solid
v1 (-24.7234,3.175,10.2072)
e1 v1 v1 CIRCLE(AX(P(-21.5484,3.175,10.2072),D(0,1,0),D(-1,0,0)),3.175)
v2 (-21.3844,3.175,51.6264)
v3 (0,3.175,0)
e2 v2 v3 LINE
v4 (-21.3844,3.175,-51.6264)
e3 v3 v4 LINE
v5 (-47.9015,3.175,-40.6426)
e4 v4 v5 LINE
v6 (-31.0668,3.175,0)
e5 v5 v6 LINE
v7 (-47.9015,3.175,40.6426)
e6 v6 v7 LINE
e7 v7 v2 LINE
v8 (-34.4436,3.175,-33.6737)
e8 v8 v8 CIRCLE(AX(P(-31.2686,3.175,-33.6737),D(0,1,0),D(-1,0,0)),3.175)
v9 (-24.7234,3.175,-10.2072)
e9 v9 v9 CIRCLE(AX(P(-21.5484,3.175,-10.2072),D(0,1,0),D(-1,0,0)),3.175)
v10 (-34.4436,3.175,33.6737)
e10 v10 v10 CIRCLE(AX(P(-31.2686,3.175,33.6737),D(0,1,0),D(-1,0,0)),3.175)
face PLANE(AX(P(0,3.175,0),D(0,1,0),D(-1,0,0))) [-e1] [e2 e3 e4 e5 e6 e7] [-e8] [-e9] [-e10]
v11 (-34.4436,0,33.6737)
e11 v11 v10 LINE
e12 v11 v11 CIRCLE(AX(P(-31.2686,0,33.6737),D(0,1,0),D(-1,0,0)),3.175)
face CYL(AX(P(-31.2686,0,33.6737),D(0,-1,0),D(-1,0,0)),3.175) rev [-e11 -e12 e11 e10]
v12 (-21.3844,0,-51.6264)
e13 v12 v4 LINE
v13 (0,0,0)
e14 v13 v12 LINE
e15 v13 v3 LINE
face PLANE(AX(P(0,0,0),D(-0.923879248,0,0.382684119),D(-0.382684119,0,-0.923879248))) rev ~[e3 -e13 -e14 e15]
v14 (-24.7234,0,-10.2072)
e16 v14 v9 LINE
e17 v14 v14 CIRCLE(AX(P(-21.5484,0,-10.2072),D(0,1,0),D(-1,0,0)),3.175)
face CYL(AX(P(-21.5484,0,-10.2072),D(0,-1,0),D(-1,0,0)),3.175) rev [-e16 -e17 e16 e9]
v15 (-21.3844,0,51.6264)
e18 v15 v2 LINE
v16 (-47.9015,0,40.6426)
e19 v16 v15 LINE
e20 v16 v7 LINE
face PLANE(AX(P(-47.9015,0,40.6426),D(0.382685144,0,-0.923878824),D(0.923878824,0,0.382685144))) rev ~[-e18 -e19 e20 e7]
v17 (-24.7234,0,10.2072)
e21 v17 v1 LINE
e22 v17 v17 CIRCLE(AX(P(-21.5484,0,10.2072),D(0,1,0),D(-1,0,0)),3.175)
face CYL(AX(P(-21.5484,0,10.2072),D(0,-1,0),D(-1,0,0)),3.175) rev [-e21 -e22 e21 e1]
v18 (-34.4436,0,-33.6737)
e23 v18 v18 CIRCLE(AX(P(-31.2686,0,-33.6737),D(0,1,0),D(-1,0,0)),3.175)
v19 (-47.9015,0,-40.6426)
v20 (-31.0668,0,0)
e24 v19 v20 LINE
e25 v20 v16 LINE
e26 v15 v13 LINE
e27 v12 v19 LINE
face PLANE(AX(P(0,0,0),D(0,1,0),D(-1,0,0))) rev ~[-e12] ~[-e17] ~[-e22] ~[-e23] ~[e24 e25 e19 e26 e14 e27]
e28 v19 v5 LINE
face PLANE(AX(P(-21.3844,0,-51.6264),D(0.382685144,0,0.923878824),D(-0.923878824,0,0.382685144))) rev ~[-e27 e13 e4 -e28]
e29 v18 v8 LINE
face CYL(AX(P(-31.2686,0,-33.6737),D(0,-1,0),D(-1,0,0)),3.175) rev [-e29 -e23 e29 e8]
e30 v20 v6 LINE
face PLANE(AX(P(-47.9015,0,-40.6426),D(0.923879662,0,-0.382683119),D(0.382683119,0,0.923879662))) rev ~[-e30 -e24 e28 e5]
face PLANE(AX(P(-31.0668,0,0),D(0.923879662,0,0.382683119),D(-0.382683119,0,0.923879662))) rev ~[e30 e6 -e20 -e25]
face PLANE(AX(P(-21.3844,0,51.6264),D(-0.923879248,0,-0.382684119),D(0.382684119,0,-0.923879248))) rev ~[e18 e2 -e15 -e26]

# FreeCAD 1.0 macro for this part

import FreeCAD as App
import Part
import Sketcher

V = App.Vector
Q = App.Units.Quantity

doc = App.newDocument("Part")
body = doc.addObject("PartDesign::Body", "Body")

sketch1 = doc.addObject("Sketcher::SketchObject", "Sketch")
body.addObject(sketch1)
sketch1.AttachmentSupport = (doc.XZ_Plane, [""])
sketch1.MapMode = "FlatFace"
sketch1.addGeometry(Part.LineSegment(V(-21.3844, 51.6264, 0), V(0, 0, 0)), False)
sketch1.addGeometry(Part.LineSegment(V(0, 0, 0), V(-21.3844, -51.6264, 0)), False)
sketch1.addGeometry(Part.LineSegment(V(-21.3844, -51.6264, 0), V(-47.9015, -40.6426, 0)), False)
sketch1.addGeometry(Part.LineSegment(V(-47.9015, -40.6426, 0), V(-31.0668, 0, 0)), False)
sketch1.addGeometry(Part.LineSegment(V(-31.0668, 0, 0), V(-47.9015, 40.6426, 0)), False)
sketch1.addGeometry(Part.LineSegment(V(-47.9015, 40.6426, 0), V(-21.3844, 51.6264, 0)), False)
sketch1.addGeometry(Part.Circle(V(-21.5484, -10.2072, 0), V(0, 0, 1), 3.175), False)
sketch1.addGeometry(Part.Circle(V(-31.2686, -33.6737, 0), V(0, 0, 1), 3.175), False)
sketch1.addGeometry(Part.Circle(V(-21.5484, 10.2072, 0), V(0, 0, 1), 3.175), False)
sketch1.addGeometry(Part.Circle(V(-31.2686, 33.6737, 0), V(0, 0, 1), 3.175), False)
sketch1.addConstraint(Sketcher.Constraint("Coincident", 0, 2, 1, 1))
sketch1.addConstraint(Sketcher.Constraint("Coincident", 1, 2, 2, 1))
sketch1.addConstraint(Sketcher.Constraint("Coincident", 2, 2, 3, 1))
sketch1.addConstraint(Sketcher.Constraint("Coincident", 3, 2, 4, 1))
sketch1.addConstraint(Sketcher.Constraint("Coincident", 4, 2, 5, 1))
sketch1.addConstraint(Sketcher.Constraint("Coincident", 5, 2, 0, 1))
sketch1.addConstraint(Sketcher.Constraint("Coincident", 0, 2, -1, 1))
sketch1.addConstraint(Sketcher.Constraint("Equal", 6, 7))
sketch1.addConstraint(Sketcher.Constraint("Equal", 7, 8))
sketch1.addConstraint(Sketcher.Constraint("Equal", 8, 9))
sketch1.addConstraint(Sketcher.Constraint("Symmetric", 6, 3, 8, 3, -1))
sketch1.addConstraint(Sketcher.Constraint("Symmetric", 7, 3, 9, 3, -1))
sketch1.addConstraint(Sketcher.Constraint("Symmetric", 2, 2, 4, 2, -1))
sketch1.addConstraint(Sketcher.Constraint("Symmetric", 1, 2, 5, 2, -1))
sketch1.addConstraint(Sketcher.Constraint("PointOnObject", 3, 2, -1))
sketch1.addConstraint(Sketcher.Constraint("Perpendicular", 1, 2))
sketch1.addConstraint(Sketcher.Constraint("Perpendicular", 2, 3))
sketch1.addConstraint(Sketcher.Constraint("Diameter", 6, Q("0.25 in")))
sketch1.addConstraint(Sketcher.Constraint("Distance", 0, Q("2.2 in")))
sketch1.addConstraint(Sketcher.Constraint("Distance", 2, Q("1.13 in")))
sketch1.addConstraint(Sketcher.Constraint("Angle", 0, Q("-67.5 deg")))
sketch1.addConstraint(Sketcher.Constraint("DistanceY", 7, 3, 8, 3, Q("1.7276 in")))
sketch1.addConstraint(Sketcher.Constraint("DistanceY", 1, 2, 7, 3, Q("0.7068 in")))
sketch1.addConstraint(Sketcher.Constraint("DistanceX", 6, 3, -1, 1, Q("21.5484 mm")))
sketch1.addConstraint(Sketcher.Constraint("DistanceX", 7, 3, -1, 1, Q("31.2686 mm")))
pad1 = doc.addObject("PartDesign::Pad", "Pad")
body.addObject(pad1)
pad1.Profile = sketch1
pad1.Length = Q("0.125 in")
pad1.Reversed = True

doc.recompute()
